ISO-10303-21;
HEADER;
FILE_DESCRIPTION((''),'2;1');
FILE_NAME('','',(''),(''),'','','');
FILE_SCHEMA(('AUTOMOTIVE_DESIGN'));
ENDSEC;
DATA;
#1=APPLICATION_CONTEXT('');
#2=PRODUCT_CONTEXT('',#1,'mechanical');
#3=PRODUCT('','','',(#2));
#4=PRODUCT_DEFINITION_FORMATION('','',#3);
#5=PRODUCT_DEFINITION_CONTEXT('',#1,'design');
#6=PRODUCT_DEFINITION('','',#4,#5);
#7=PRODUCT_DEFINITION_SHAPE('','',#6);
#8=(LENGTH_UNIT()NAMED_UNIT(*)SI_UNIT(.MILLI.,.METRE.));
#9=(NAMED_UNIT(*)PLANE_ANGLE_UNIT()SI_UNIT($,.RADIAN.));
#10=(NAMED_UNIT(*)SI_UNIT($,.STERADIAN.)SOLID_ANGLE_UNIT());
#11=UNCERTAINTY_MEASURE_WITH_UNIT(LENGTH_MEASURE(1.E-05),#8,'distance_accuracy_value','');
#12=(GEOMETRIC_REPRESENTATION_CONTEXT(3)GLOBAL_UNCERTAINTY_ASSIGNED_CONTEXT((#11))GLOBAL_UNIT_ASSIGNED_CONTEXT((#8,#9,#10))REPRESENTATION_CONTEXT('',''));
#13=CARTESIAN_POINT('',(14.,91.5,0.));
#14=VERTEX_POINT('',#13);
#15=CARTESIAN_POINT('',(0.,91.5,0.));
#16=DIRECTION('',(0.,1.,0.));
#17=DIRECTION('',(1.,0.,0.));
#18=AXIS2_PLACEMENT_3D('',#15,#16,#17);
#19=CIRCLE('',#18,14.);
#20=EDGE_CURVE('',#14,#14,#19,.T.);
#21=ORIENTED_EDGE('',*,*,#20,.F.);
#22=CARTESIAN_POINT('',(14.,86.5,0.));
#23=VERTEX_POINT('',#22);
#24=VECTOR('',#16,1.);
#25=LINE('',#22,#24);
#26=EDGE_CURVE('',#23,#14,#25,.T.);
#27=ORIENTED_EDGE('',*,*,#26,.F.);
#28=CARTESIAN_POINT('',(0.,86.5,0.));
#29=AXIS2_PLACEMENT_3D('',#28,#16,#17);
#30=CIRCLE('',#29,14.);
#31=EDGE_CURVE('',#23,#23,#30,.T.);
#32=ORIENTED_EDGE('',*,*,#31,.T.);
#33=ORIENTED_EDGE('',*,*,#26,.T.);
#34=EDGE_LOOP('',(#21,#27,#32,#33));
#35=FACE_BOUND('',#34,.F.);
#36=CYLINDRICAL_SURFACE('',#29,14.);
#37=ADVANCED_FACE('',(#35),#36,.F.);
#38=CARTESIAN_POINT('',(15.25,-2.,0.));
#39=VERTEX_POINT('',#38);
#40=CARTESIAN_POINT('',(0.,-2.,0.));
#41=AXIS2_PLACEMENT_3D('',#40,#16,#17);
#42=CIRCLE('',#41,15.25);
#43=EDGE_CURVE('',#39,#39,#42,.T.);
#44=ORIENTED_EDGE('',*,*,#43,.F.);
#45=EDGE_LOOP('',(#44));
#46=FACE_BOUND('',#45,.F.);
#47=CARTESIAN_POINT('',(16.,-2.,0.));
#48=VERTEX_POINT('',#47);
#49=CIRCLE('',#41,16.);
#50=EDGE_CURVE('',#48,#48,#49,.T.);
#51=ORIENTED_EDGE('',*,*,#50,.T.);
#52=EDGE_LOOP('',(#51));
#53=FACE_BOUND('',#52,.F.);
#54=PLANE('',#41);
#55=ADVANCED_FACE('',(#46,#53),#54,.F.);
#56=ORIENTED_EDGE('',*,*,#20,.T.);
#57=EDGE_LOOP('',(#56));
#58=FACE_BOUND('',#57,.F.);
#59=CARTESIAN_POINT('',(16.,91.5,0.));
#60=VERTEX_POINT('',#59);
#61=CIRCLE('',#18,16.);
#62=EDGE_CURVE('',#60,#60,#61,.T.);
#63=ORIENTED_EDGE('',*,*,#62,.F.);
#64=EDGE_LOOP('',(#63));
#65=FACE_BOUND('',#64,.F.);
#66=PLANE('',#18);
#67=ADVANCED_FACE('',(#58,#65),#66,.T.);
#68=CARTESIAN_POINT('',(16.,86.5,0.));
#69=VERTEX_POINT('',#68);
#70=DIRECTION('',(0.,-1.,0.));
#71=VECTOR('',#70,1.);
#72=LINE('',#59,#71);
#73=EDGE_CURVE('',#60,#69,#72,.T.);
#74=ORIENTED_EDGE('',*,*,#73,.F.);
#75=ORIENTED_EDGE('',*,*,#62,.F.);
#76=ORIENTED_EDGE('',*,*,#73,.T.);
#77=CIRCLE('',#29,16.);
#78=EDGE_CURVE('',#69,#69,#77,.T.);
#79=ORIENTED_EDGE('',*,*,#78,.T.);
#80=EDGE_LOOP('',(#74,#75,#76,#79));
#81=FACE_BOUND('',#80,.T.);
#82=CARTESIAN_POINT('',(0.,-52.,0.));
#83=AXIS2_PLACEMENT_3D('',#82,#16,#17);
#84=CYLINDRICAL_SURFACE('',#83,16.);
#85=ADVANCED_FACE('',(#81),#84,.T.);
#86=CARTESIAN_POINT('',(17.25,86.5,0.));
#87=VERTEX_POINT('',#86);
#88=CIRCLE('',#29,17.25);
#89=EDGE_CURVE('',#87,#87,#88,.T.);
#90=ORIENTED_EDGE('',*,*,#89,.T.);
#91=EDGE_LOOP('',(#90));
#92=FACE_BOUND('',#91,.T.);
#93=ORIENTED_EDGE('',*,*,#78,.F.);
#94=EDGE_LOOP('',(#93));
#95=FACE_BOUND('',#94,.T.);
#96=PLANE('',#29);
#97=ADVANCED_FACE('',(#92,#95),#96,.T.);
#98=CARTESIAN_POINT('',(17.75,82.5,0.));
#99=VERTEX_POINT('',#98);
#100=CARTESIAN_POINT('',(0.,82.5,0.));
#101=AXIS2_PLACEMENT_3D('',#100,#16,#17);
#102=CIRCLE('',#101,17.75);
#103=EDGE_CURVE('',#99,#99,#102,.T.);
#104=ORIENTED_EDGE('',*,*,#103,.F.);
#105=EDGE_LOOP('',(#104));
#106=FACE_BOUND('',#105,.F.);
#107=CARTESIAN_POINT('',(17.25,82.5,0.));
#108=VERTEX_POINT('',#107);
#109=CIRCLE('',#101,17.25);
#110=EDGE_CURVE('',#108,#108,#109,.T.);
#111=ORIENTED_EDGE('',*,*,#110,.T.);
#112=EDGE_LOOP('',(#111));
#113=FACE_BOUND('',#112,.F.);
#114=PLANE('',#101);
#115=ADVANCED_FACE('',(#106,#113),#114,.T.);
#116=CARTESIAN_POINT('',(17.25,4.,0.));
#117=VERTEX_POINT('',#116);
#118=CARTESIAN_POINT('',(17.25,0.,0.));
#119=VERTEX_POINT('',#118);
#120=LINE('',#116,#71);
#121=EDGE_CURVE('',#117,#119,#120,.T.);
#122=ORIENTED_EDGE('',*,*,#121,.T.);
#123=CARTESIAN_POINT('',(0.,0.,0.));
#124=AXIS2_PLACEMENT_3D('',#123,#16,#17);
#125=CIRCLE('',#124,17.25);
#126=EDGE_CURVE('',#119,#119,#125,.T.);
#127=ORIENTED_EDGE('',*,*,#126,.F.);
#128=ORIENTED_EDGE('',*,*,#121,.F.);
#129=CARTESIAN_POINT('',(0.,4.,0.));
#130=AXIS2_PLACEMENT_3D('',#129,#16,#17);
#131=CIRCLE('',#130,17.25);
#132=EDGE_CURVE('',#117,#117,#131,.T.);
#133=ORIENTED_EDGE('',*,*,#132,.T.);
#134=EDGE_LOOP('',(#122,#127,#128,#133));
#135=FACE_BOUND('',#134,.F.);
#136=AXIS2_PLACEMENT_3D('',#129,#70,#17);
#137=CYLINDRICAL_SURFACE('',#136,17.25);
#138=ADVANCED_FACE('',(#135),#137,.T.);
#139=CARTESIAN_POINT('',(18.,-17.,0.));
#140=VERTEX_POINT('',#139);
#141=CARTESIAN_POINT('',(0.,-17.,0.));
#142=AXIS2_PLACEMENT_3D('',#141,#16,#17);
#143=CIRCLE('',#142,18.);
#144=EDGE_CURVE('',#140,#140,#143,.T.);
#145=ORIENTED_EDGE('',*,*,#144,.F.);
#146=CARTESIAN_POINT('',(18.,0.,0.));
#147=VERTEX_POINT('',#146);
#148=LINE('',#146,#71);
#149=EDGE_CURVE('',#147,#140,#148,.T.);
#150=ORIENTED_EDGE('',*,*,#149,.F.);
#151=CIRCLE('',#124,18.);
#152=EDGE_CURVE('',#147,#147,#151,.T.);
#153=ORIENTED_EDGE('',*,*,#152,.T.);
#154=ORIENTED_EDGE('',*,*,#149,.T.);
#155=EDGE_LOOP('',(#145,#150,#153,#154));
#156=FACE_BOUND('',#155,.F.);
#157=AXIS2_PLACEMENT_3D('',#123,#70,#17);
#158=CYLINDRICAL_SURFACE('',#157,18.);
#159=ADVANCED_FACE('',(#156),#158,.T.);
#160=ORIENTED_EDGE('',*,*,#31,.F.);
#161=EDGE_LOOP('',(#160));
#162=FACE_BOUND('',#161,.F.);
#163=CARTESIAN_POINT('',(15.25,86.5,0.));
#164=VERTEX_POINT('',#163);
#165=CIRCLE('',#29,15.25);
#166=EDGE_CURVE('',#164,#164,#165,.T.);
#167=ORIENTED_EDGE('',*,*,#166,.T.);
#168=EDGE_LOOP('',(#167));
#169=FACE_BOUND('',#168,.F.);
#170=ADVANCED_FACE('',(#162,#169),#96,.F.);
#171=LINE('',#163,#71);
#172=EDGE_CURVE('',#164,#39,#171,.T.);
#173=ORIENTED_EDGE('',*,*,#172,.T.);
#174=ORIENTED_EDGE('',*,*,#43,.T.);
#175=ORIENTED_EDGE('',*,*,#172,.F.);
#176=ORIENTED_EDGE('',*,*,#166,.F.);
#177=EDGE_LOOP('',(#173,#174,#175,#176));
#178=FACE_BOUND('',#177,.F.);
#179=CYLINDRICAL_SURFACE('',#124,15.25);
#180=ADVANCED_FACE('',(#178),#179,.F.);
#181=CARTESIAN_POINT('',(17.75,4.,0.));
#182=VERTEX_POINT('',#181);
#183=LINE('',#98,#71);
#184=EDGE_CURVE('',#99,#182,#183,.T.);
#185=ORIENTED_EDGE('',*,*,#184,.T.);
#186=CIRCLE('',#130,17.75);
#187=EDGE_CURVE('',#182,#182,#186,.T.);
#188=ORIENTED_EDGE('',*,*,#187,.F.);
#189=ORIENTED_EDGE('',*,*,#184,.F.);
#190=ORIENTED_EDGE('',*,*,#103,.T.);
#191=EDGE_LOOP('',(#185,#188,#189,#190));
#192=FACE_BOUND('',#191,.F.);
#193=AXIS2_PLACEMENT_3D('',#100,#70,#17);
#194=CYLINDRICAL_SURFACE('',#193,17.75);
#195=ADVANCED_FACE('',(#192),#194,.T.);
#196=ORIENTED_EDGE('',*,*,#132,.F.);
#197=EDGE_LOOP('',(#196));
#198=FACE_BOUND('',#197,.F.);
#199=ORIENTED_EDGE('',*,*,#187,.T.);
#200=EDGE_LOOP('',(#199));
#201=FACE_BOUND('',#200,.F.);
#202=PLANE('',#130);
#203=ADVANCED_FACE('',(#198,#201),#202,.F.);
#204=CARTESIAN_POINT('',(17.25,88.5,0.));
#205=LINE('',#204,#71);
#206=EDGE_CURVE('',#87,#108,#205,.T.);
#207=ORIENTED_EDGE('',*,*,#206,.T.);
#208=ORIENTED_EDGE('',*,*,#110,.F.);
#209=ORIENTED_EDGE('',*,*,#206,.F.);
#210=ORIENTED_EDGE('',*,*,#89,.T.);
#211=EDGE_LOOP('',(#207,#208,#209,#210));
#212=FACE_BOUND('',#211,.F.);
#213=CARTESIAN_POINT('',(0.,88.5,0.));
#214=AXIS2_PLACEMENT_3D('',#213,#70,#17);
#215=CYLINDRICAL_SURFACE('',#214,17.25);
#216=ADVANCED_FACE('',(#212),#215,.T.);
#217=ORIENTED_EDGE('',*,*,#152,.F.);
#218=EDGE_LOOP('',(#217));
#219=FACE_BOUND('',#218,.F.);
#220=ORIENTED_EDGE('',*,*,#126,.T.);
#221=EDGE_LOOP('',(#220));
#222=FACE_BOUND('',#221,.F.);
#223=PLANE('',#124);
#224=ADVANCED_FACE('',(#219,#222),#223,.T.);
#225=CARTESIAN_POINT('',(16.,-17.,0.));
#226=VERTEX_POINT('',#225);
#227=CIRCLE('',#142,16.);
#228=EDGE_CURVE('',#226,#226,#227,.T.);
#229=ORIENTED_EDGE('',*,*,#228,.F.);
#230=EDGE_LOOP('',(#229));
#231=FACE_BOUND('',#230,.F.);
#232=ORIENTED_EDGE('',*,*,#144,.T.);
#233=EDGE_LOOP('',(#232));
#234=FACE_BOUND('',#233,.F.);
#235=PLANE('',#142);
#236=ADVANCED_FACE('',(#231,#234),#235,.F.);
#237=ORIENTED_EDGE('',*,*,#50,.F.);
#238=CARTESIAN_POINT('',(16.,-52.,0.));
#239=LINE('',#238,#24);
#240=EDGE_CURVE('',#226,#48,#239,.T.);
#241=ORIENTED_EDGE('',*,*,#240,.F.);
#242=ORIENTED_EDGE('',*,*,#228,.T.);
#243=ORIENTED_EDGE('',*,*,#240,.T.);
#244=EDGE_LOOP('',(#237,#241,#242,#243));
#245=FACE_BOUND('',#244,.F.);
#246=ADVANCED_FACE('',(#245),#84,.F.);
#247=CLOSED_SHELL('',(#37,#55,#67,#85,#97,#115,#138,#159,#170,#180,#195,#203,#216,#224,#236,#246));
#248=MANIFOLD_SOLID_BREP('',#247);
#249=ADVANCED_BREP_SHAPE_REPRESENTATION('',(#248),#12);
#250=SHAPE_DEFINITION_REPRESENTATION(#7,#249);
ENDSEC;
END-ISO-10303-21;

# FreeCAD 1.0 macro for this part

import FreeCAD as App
import Part
import Sketcher
from FreeCAD import Vector
Q = App.Units.Quantity


def add_polygon(sketch, points):
    """Adds a closed chain of lines whose ends are joined by coincident constraints."""
    first, n = sketch.GeometryCount, len(points)
    for a, b in zip(points, points[1:] + points[:1]):
        sketch.addGeometry(Part.LineSegment(App.Vector(*a, 0), App.Vector(*b, 0)), False)
    for i in range(n):
        sketch.addConstraint(Sketcher.Constraint("Coincident", first + i, 2, first + (i + 1) % n, 1))

doc = App.newDocument("Part")
body = doc.addObject("PartDesign::Body", "Body")

# Sketch on XY plane
sketch1 = body.newObject("Sketcher::SketchObject", "Sketch")
sketch1.AttachmentSupport = (doc.getObject("XY_Plane"), [""])
sketch1.MapMode = "FlatFace"
add_polygon(sketch1, [(15.2, -2), (16, -2), (16, -17), (18, -17), (18, 0), (17.2, 0), (17.2, 4), (17.8, 4), (17.8, 82.5), (17.2, 82.5), (17.2, 86.5), (16, 86.5), (16, 91.5), (14, 91.5), (14, 86.5), (15.2, 86.5)])  # lines 0-15
sketch1.addConstraint(Sketcher.Constraint("Horizontal", 0))
sketch1.addConstraint(Sketcher.Constraint("Vertical", 1))
sketch1.addConstraint(Sketcher.Constraint("Horizontal", 2))
sketch1.addConstraint(Sketcher.Constraint("Vertical", 3))
sketch1.addConstraint(Sketcher.Constraint("Horizontal", 4))
sketch1.addConstraint(Sketcher.Constraint("Vertical", 5))
sketch1.addConstraint(Sketcher.Constraint("Horizontal", 6))
sketch1.addConstraint(Sketcher.Constraint("Vertical", 7))
sketch1.addConstraint(Sketcher.Constraint("Horizontal", 8))
sketch1.addConstraint(Sketcher.Constraint("Vertical", 9))
sketch1.addConstraint(Sketcher.Constraint("Horizontal", 10))
sketch1.addConstraint(Sketcher.Constraint("Vertical", 11))
sketch1.addConstraint(Sketcher.Constraint("Horizontal", 12))
sketch1.addConstraint(Sketcher.Constraint("Vertical", 13))
sketch1.addConstraint(Sketcher.Constraint("Horizontal", 14))
sketch1.addConstraint(Sketcher.Constraint("Vertical", 15))
sketch1.addConstraint(Sketcher.Constraint("PointOnObject", 3, 2, -1))
sketch1.addConstraint(Sketcher.Constraint("Horizontal", 10, 2, 13, 2))
sketch1.addConstraint(Sketcher.Constraint("Vertical", 5, 2, 8, 2))
sketch1.addConstraint(Sketcher.Constraint("Vertical", 1, 2, 10, 2))
sketch1.addConstraint(Sketcher.Constraint("Equal", 0, 4))
sketch1.addConstraint(Sketcher.Constraint("Equal", 2, 12))
sketch1.addConstraint(Sketcher.Constraint("Equal", 5, 9))
sketch1.addConstraint(Sketcher.Constraint("DistanceX", 2, 1, 2, 2, Q("2 mm")))
sketch1.addConstraint(Sketcher.Constraint("DistanceY", 3, 1, 3, 2, Q("17 mm")))
sketch1.addConstraint(Sketcher.Constraint("DistanceY", 5, 1, 5, 2, Q("4 mm")))
sketch1.addConstraint(Sketcher.Constraint("DistanceY", 11, 1, 11, 2, Q("5 mm")))
sketch1.addConstraint(Sketcher.Constraint("DistanceX", 6, 1, 6, 2, Q("0.5 mm")))
sketch1.addConstraint(Sketcher.Constraint("DistanceY", 0, 2, -1, 1, Q("2 mm")))
sketch1.addConstraint(Sketcher.Constraint("DistanceY", -1, 1, 9, 2, Q("86.5 mm")))
sketch1.addConstraint(Sketcher.Constraint("DistanceX", -1, 1, 0, 2, Q("16 mm")))
sketch1.addConstraint(Sketcher.Constraint("DistanceX", 0, 1, 0, 2, Q("0.75 mm")))
revolution = body.newObject("PartDesign::Revolution", "Revolution")
revolution.Profile = sketch1
revolution.ReferenceAxis = (sketch1, ["V_Axis"])
revolution.Angle = 360

doc.recompute()
